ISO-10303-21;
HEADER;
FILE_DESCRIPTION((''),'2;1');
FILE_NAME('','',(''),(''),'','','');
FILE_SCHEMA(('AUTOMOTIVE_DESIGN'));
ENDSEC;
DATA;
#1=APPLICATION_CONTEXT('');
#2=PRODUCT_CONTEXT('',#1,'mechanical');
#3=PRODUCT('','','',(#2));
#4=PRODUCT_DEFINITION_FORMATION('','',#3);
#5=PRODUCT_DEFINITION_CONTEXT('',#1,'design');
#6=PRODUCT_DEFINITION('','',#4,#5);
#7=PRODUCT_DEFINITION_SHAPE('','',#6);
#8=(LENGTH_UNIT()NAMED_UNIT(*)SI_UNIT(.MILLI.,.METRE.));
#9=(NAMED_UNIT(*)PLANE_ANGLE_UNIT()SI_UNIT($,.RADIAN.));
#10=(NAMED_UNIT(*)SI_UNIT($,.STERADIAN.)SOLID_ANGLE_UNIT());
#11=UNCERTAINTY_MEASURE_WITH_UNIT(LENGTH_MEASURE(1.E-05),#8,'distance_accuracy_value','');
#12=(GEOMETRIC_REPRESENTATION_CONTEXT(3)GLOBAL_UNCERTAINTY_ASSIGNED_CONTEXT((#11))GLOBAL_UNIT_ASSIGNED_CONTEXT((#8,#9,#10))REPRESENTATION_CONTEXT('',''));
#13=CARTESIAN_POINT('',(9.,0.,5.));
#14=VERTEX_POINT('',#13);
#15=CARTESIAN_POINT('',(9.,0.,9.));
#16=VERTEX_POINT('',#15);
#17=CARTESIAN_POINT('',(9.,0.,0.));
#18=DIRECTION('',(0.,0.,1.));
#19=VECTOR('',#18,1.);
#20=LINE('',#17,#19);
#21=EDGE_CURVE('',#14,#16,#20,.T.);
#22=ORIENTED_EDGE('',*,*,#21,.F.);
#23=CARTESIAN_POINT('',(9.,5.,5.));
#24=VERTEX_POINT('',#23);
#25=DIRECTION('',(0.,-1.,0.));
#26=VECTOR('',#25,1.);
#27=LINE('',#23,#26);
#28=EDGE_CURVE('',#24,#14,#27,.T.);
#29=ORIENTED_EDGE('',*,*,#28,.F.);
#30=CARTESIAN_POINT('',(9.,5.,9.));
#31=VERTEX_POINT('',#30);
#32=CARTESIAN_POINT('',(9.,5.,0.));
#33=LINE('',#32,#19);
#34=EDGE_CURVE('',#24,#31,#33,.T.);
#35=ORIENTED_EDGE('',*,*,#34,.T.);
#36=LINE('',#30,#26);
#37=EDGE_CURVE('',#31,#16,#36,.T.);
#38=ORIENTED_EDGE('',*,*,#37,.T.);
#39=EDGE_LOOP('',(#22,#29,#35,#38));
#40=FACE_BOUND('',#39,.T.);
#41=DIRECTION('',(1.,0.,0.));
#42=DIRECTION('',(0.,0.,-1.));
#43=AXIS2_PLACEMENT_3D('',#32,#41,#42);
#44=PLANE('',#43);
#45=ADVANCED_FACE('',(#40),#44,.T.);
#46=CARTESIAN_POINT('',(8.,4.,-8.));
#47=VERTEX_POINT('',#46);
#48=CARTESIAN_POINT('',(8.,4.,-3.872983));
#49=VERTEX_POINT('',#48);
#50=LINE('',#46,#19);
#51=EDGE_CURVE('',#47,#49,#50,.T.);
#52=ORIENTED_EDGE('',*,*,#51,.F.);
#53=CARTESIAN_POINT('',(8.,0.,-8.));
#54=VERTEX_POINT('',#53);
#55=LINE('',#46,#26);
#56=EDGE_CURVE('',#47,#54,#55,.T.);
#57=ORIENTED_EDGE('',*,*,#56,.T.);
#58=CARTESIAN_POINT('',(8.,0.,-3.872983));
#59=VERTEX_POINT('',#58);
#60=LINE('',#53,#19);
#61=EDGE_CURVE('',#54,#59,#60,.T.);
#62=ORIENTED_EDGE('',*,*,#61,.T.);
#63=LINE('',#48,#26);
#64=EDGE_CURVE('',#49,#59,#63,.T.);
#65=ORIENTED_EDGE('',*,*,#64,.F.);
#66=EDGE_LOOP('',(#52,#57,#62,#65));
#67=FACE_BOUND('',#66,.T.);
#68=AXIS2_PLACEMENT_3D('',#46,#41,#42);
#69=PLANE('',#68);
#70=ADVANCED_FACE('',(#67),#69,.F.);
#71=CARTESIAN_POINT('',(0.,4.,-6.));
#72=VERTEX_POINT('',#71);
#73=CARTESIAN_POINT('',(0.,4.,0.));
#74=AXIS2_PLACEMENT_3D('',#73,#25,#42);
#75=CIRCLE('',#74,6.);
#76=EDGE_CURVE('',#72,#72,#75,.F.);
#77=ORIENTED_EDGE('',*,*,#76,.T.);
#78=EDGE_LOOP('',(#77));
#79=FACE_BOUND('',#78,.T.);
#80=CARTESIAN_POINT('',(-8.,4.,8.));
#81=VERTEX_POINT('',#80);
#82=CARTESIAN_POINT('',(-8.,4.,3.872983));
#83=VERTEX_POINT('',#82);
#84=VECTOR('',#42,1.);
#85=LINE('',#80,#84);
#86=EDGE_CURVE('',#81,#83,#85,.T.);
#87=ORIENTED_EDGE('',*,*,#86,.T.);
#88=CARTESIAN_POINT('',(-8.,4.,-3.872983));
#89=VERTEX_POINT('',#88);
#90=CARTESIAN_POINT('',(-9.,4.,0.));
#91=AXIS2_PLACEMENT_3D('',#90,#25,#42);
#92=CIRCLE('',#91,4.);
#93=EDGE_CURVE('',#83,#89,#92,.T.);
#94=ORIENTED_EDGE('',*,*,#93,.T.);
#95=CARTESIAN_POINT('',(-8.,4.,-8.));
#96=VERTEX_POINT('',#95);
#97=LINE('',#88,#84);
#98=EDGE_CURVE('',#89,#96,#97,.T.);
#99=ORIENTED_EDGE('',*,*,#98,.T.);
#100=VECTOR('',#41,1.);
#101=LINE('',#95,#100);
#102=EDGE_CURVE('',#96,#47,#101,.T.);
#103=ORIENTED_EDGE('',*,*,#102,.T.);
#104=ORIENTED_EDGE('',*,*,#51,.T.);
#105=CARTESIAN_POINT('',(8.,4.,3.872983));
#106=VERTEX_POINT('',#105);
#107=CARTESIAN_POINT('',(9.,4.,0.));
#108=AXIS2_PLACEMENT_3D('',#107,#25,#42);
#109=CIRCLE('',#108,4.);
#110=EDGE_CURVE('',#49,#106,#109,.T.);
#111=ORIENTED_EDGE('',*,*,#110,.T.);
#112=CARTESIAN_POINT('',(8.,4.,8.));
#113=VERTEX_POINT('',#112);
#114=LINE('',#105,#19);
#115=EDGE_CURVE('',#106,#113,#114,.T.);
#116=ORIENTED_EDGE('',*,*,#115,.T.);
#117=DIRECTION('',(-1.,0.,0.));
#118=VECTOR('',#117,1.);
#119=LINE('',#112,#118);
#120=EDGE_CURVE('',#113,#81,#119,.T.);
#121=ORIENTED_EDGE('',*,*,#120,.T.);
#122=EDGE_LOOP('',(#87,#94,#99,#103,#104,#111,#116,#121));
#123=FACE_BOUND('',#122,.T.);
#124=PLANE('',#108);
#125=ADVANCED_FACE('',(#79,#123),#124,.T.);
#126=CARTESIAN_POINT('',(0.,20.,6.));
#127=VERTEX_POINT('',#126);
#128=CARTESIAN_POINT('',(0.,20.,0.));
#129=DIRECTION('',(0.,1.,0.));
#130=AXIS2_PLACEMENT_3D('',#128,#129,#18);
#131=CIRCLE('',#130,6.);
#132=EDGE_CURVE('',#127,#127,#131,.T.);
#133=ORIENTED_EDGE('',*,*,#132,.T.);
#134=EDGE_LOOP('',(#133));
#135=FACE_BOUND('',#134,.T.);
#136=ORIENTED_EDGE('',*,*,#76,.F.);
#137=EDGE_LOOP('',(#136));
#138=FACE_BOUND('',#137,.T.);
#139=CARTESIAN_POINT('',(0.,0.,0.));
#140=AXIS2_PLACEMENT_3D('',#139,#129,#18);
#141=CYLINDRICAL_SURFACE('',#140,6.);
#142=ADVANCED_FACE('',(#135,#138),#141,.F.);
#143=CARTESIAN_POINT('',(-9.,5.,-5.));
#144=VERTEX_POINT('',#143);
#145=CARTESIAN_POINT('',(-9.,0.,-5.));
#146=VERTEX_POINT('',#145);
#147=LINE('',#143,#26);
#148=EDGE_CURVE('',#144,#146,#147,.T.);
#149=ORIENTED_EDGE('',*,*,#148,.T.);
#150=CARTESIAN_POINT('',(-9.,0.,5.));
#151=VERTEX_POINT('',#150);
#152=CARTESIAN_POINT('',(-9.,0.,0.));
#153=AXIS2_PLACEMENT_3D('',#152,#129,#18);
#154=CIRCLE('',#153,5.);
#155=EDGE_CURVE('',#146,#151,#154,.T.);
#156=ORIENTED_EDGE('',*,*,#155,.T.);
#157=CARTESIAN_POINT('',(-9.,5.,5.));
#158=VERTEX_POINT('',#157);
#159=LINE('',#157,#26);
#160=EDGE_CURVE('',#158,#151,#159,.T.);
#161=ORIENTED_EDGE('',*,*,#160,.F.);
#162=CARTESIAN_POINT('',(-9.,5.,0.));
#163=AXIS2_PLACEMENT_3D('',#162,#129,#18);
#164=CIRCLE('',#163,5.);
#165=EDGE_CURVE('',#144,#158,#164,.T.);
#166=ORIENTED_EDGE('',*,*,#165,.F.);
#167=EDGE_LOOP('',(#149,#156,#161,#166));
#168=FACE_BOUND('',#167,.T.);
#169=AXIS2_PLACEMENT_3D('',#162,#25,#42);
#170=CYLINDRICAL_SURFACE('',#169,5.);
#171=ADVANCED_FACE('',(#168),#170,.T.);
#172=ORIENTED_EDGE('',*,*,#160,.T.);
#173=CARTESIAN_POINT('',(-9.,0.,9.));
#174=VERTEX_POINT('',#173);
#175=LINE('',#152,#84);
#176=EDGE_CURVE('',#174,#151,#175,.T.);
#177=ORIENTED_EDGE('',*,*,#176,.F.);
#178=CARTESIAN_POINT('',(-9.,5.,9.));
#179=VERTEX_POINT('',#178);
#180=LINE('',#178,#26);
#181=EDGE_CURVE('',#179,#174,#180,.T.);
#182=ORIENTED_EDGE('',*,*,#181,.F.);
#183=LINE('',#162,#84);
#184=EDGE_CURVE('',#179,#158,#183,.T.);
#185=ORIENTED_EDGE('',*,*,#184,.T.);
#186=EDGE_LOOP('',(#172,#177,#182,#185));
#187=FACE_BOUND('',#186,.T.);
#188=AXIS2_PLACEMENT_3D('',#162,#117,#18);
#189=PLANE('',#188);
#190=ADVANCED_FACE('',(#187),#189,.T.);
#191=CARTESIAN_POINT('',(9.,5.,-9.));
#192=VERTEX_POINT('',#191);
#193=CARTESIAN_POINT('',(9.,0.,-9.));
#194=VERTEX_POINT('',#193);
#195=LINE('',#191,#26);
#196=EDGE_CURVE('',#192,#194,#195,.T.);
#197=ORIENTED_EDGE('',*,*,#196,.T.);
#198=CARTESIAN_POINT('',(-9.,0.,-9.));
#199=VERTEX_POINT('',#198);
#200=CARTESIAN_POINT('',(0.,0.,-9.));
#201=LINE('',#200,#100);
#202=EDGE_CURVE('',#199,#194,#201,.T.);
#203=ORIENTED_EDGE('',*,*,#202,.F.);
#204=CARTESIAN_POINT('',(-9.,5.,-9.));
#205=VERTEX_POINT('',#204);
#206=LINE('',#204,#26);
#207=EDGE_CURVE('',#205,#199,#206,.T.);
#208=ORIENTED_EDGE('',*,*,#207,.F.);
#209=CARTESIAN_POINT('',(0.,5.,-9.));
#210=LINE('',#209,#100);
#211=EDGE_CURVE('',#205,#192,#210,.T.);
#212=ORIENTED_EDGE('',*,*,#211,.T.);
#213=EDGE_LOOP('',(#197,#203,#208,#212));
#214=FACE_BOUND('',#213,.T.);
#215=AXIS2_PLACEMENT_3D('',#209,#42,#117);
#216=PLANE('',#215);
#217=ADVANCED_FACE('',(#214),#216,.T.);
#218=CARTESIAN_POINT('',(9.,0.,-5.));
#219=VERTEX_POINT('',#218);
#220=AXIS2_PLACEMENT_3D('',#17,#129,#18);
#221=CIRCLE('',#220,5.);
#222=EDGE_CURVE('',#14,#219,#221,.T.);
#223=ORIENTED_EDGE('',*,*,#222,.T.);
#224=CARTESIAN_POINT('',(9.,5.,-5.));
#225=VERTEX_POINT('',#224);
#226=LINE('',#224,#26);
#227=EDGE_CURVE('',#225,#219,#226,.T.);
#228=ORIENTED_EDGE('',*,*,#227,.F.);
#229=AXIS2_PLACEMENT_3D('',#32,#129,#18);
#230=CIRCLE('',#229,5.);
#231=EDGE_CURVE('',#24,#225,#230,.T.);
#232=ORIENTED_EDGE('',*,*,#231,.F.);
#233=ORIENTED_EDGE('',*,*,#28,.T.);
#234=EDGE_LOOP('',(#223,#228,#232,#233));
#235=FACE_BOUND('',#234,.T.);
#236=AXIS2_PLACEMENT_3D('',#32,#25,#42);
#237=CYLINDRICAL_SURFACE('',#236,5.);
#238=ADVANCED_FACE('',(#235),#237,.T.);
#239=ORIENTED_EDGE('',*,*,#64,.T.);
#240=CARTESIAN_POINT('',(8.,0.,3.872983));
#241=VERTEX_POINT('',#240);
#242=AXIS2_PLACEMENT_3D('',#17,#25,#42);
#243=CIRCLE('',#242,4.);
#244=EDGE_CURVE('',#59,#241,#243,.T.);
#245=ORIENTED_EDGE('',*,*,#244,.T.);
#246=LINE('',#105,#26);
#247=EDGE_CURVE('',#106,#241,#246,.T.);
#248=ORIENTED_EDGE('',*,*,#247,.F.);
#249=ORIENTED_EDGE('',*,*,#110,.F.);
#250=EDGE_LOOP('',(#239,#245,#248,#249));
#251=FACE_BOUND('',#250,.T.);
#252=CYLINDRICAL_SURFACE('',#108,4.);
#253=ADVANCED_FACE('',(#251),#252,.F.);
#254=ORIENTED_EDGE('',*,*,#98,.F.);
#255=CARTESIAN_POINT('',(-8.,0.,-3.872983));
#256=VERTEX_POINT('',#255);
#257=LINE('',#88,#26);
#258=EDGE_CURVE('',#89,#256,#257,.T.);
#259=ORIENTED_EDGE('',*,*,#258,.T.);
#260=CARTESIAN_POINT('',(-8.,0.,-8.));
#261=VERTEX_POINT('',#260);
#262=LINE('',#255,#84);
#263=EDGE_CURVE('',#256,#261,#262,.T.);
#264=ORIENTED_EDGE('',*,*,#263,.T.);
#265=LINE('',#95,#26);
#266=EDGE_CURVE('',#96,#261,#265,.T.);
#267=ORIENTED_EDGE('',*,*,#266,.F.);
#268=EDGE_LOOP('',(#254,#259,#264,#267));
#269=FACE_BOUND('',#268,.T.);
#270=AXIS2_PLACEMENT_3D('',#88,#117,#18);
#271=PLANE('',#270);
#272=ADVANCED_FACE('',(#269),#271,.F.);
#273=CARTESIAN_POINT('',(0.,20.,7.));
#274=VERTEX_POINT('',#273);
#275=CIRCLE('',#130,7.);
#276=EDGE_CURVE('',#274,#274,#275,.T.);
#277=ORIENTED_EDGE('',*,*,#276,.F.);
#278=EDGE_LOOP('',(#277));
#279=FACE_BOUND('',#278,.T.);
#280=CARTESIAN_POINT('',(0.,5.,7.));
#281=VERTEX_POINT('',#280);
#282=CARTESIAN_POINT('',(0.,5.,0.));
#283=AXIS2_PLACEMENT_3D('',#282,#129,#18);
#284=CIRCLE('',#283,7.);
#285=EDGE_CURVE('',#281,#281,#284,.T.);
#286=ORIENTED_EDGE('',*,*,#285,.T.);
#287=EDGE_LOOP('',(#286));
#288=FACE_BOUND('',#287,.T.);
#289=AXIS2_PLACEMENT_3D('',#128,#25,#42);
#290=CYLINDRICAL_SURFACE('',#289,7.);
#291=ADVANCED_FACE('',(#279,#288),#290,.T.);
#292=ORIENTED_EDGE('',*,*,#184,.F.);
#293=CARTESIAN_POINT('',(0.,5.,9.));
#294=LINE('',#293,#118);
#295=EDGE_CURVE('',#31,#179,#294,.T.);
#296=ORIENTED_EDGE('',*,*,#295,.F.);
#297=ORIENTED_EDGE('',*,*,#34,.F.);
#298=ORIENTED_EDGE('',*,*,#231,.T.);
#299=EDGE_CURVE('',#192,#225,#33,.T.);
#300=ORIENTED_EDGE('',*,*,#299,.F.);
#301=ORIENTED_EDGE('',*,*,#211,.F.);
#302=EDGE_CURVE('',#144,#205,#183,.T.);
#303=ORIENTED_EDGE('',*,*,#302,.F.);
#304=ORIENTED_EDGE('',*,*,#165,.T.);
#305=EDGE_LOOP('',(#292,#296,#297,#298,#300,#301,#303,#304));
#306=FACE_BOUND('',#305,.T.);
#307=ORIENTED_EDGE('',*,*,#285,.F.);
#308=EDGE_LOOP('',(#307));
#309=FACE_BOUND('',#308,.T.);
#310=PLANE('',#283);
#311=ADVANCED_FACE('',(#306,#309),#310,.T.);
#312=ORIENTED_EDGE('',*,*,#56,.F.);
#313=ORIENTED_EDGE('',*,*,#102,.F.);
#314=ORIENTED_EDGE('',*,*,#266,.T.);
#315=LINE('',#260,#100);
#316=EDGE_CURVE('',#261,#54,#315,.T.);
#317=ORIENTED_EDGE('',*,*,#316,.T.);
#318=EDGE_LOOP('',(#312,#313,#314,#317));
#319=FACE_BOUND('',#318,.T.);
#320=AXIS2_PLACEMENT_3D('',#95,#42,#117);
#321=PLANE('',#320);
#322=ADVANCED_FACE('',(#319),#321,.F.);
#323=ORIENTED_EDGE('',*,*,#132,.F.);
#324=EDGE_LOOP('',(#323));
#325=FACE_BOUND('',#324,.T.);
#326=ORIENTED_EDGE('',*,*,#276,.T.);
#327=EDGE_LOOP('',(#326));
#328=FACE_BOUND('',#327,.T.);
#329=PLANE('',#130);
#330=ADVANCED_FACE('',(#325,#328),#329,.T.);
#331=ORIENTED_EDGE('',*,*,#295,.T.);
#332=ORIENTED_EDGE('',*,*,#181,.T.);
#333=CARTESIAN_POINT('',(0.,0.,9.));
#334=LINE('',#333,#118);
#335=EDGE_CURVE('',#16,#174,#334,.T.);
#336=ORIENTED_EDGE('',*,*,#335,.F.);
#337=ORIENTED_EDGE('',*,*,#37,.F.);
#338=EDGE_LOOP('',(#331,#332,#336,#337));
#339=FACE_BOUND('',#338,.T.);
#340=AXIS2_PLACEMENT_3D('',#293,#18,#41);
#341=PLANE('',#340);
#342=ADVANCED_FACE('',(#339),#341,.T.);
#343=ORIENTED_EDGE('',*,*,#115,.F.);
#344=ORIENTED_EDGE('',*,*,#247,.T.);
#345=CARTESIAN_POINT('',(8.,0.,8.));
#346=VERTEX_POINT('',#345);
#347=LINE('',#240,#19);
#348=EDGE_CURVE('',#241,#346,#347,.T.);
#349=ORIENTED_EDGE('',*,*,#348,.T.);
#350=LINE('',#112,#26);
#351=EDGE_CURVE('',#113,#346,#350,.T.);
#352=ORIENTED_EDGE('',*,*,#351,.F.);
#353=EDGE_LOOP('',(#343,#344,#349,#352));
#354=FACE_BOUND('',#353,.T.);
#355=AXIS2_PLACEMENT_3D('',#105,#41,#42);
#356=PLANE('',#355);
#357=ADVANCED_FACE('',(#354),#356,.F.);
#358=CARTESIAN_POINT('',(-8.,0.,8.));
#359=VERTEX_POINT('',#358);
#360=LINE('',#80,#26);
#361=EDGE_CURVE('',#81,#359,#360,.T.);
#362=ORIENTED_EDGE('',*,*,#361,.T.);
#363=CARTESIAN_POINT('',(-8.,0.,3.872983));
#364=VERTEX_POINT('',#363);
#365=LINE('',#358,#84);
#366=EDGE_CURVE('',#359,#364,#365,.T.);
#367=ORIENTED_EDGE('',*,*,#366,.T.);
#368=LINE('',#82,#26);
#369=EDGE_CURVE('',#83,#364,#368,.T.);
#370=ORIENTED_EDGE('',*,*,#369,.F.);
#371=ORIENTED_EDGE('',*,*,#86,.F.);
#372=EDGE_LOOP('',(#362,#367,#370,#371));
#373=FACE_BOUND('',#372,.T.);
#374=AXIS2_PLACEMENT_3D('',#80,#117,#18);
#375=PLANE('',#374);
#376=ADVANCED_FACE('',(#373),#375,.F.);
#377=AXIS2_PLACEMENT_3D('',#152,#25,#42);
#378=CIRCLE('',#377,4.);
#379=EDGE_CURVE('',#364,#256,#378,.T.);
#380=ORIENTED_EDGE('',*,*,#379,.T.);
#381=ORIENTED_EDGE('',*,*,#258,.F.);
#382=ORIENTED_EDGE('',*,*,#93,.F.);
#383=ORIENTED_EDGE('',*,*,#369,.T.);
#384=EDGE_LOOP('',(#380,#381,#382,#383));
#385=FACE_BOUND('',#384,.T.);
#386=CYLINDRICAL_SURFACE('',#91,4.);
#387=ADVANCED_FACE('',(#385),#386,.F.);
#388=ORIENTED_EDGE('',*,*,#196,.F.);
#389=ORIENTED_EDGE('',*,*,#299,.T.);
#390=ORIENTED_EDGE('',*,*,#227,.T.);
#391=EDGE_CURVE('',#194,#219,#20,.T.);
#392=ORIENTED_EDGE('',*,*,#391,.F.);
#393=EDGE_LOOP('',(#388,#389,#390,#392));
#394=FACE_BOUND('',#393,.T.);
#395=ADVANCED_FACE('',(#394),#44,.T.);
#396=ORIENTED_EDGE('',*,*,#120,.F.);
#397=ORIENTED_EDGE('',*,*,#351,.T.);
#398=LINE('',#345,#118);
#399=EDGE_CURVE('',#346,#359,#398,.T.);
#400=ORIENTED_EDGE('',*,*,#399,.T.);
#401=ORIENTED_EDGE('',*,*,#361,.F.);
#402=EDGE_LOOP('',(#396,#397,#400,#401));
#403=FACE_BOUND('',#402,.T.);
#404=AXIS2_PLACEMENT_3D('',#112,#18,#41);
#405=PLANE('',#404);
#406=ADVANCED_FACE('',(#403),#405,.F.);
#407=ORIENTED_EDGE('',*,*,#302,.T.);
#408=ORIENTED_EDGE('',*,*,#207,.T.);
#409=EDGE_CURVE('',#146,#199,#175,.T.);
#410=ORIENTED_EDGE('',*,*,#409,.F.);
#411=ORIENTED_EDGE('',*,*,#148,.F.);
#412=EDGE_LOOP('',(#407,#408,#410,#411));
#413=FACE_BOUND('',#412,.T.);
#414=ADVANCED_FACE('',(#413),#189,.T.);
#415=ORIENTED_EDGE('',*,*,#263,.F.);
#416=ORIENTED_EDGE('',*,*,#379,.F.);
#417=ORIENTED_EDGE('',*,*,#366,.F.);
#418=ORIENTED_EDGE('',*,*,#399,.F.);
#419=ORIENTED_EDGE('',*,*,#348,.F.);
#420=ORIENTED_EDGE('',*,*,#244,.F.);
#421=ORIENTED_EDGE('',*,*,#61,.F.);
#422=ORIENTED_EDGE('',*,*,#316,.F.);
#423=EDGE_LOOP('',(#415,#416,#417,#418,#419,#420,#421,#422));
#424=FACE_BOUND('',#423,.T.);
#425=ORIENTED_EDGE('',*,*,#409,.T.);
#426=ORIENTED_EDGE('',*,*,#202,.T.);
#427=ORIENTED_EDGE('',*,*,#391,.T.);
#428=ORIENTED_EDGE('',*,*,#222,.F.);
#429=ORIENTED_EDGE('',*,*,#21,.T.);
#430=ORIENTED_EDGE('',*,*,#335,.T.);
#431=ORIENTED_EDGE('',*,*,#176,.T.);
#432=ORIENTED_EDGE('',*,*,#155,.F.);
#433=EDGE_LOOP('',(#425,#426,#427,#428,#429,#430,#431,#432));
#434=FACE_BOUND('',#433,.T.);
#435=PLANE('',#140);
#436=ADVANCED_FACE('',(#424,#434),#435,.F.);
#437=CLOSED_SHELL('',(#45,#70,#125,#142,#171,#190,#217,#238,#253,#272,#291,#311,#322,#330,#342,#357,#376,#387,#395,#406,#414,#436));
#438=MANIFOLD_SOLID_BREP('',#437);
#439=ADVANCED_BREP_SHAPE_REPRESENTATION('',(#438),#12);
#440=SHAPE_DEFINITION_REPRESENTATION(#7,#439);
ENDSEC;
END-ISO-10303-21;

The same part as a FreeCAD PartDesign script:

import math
import FreeCAD as App
import Part
import Sketcher

V = App.Vector
Q = App.Units.Quantity

doc = App.newDocument("Part")
body = doc.addObject("PartDesign::Body", "Body")

sketch1 = body.newObject("Sketcher::SketchObject", "Sketch")
sketch1.AttachmentSupport = (doc.getObject("XZ_Plane"), [""])
sketch1.MapMode = "FlatFace"
sketch1.addGeometry([
    Part.LineSegment(V(-9, -9, 0), V(-9, -5, 0)),
    Part.ArcOfCircle(Part.Circle(V(-9, 0, 0), V(0, 0, 1), 5), math.radians(90), math.radians(270)),
    Part.LineSegment(V(-9, 5, 0), V(-9, 9, 0)),
    Part.LineSegment(V(-9, 9, 0), V(9, 9, 0)),
    Part.LineSegment(V(9, 9, 0), V(9, 5, 0)),
    Part.ArcOfCircle(Part.Circle(V(9, 0, 0), V(0, 0, 1), 5), math.radians(-90), math.radians(90)),
    Part.LineSegment(V(9, -5, 0), V(9, -9, 0)),
    Part.LineSegment(V(9, -9, 0), V(-9, -9, 0)),
], False)
sketch1.addConstraint([
    Sketcher.Constraint("Coincident", 0, 2, 1, 2),
    Sketcher.Constraint("Coincident", 1, 1, 2, 1),
    Sketcher.Constraint("Coincident", 2, 2, 3, 1),
    Sketcher.Constraint("Coincident", 3, 2, 4, 1),
    Sketcher.Constraint("Coincident", 4, 2, 5, 2),
    Sketcher.Constraint("Coincident", 5, 1, 6, 1),
    Sketcher.Constraint("Coincident", 6, 2, 7, 1),
    Sketcher.Constraint("Coincident", 7, 2, 0, 1),
    Sketcher.Constraint("Vertical", 0),
    Sketcher.Constraint("Vertical", 2),
    Sketcher.Constraint("Horizontal", 3),
    Sketcher.Constraint("Vertical", 4),
    Sketcher.Constraint("Vertical", 6),
    Sketcher.Constraint("Horizontal", 7),
    Sketcher.Constraint("Equal", 1, 5),
    Sketcher.Constraint("Symmetric", 1, 3, 5, 3, -1, 1),
    Sketcher.Constraint("Symmetric", 2, 2, 6, 2, -1, 1),
    Sketcher.Constraint("Symmetric", 1, 1, 4, 2, -2),
    Sketcher.Constraint("Vertical", 1, 3, 0, 2),
    Sketcher.Constraint("Vertical", 0, 2, 1, 1),
    Sketcher.Constraint("Radius", 1, Q("5 mm")),
    Sketcher.Constraint("DistanceX", 3, 1, 3, 2, Q("18 mm")),
    Sketcher.Constraint("DistanceY", 0, 1, 0, 2, Q("4 mm")),
])
pad1 = body.newObject("PartDesign::Pad", "Pad")
pad1.Profile = sketch1
pad1.Length = 5
pad1.Reversed = True

sketch2 = body.newObject("Sketcher::SketchObject", "Sketch001")
sketch2.AttachmentSupport = (doc.getObject("XZ_Plane"), [""])
sketch2.MapMode = "FlatFace"
sketch2.AttachmentOffset = App.Placement(V(0, 0, -5), App.Rotation())
sketch2.addGeometry(Part.Circle(V(0, 0, 0), V(0, 0, 1), 7), False)
sketch2.addConstraint([
    Sketcher.Constraint("Coincident", 0, 3, -1, 1),
    Sketcher.Constraint("Diameter", 0, Q("14 mm")),
])
pad2 = body.newObject("PartDesign::Pad", "Pad001")
pad2.Profile = sketch2
pad2.Length = 15
pad2.Reversed = True

sketch3 = body.newObject("Sketcher::SketchObject", "Sketch002")
sketch3.AttachmentSupport = (doc.getObject("XZ_Plane"), [""])
sketch3.MapMode = "FlatFace"
sketch3.AttachmentOffset = App.Placement(V(0, 0, -20), App.Rotation())
sketch3.addGeometry(Part.Circle(V(0, 0, 0), V(0, 0, 1), 6), False)
sketch3.addConstraint([
    Sketcher.Constraint("Coincident", 0, 3, -1, 1),
    Sketcher.Constraint("Diameter", 0, Q("12 mm")),
])
pocket1 = body.newObject("PartDesign::Pocket", "Pocket")
pocket1.Profile = sketch3
pocket1.Type = "ThroughAll"
pocket1.Reversed = True

sketch4 = body.newObject("Sketcher::SketchObject", "Sketch003")
sketch4.AttachmentSupport = (doc.getObject("XZ_Plane"), [""])
sketch4.MapMode = "FlatFace"
sketch4.addGeometry([
    Part.LineSegment(V(8, -8, 0), V(8, -3.9, 0)),
    Part.ArcOfCircle(Part.Circle(V(9, 0, 0), V(0, 0, 1), 4), math.radians(-104), math.radians(104)),
    Part.LineSegment(V(8, 3.9, 0), V(8, 8, 0)),
    Part.LineSegment(V(8, 8, 0), V(-8, 8, 0)),
    Part.LineSegment(V(-8, 8, 0), V(-8, 3.9, 0)),
    Part.ArcOfCircle(Part.Circle(V(-9, 0, 0), V(0, 0, 1), 4), math.radians(76), math.radians(284)),
    Part.LineSegment(V(-8, -3.9, 0), V(-8, -8, 0)),
    Part.LineSegment(V(-8, -8, 0), V(8, -8, 0)),
], False)
sketch4.addConstraint([
    Sketcher.Constraint("Coincident", 0, 2, 1, 1),
    Sketcher.Constraint("Coincident", 1, 2, 2, 1),
    Sketcher.Constraint("Coincident", 2, 2, 3, 1),
    Sketcher.Constraint("Coincident", 3, 2, 4, 1),
    Sketcher.Constraint("Coincident", 4, 2, 5, 1),
    Sketcher.Constraint("Coincident", 5, 2, 6, 1),
    Sketcher.Constraint("Coincident", 6, 2, 7, 1),
    Sketcher.Constraint("Coincident", 7, 2, 0, 1),
    Sketcher.Constraint("Vertical", 0),
    Sketcher.Constraint("Vertical", 2),
    Sketcher.Constraint("Horizontal", 3),
    Sketcher.Constraint("Vertical", 4),
    Sketcher.Constraint("Vertical", 6),
    Sketcher.Constraint("Horizontal", 7),
    Sketcher.Constraint("Equal", 1, 5),
    Sketcher.Constraint("Symmetric", 1, 3, 5, 3, -1, 1),
    Sketcher.Constraint("Symmetric", 2, 2, 6, 2, -1, 1),
    Sketcher.Constraint("Symmetric", 1, 2, 4, 2, -2),
    Sketcher.Constraint("Horizontal", 0, 2, 5, 2),
    Sketcher.Constraint("Radius", 1, Q("4 mm")),
    Sketcher.Constraint("DistanceX", 3, 2, 3, 1, Q("16 mm")),
    Sketcher.Constraint("DistanceX", -1, 1, 1, 3, Q("9 mm")),
    Sketcher.Constraint("DistanceY", -1, 1, 2, 2, Q("8 mm")),
])
pocket2 = body.newObject("PartDesign::Pocket", "Pocket001")
pocket2.Profile = sketch4
pocket2.Length = 4

doc.recompute()
